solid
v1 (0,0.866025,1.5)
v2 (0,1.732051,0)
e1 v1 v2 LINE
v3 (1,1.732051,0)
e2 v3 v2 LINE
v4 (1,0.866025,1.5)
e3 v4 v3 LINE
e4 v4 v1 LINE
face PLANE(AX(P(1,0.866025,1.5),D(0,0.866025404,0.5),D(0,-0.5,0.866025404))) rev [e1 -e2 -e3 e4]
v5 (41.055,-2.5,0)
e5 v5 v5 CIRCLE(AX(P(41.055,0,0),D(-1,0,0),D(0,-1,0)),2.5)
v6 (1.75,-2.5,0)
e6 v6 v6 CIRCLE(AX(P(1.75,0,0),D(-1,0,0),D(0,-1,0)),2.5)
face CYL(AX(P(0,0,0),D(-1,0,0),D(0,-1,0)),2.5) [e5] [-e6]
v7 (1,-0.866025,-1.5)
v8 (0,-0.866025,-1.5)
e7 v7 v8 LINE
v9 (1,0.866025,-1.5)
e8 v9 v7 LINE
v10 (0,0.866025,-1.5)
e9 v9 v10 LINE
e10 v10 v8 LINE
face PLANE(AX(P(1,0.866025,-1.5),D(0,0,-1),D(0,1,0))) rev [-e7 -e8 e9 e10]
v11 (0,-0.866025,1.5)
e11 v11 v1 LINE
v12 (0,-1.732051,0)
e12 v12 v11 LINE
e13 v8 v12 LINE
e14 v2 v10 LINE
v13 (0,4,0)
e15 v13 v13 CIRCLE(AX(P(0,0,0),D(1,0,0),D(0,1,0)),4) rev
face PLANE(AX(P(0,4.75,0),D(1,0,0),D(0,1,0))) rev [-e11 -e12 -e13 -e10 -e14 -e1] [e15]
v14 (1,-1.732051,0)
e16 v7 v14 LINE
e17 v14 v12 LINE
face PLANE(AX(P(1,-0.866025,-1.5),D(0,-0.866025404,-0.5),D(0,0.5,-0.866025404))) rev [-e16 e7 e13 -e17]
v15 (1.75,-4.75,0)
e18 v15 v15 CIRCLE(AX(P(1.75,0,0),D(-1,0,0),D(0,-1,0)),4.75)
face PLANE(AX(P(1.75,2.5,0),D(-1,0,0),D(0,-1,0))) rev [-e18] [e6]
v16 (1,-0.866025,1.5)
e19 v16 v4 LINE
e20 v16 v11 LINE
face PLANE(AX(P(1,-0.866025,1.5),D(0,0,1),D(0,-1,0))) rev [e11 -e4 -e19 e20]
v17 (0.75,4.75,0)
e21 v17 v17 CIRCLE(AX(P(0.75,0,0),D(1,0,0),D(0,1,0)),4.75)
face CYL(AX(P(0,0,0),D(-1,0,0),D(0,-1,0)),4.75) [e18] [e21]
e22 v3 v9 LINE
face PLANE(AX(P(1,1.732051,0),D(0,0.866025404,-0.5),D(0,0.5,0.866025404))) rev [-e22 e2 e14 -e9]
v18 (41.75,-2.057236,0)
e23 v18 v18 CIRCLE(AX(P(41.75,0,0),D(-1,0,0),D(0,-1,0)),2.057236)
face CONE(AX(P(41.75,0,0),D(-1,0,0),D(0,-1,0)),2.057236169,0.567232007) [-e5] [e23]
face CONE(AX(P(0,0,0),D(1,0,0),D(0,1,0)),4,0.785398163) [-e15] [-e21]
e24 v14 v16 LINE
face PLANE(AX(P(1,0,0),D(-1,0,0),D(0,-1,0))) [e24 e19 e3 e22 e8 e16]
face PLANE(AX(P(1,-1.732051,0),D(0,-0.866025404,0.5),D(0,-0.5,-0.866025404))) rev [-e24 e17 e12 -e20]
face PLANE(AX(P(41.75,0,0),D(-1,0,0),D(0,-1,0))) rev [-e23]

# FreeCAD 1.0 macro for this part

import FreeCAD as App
import Part
import Sketcher
from FreeCAD import Vector
Q = App.Units.Quantity


def edges_at(feature, points):
    """Names of the edges that pass closest to the given points."""
    edges = feature.Shape.Edges
    near = lambda p: min(range(len(edges)), key=lambda i: edges[i].distToShape(Part.Vertex(*p))[0])
    return sorted({f"Edge{near(p) + 1}" for p in points})


def add_polygon(sketch, points):
    """Adds a closed chain of lines whose ends are joined by coincident constraints."""
    first, n = sketch.GeometryCount, len(points)
    for a, b in zip(points, points[1:] + points[:1]):
        sketch.addGeometry(Part.LineSegment(App.Vector(*a, 0), App.Vector(*b, 0)), False)
    for i in range(n):
        sketch.addConstraint(Sketcher.Constraint("Coincident", first + i, 2, first + (i + 1) % n, 1))

doc = App.newDocument("Part")
params = doc.addObject("Spreadsheet::Sheet", "Params")
for row, (alias, value) in enumerate([
    ("sketch1_width", "1.75 mm"),
    ("sketch1_height", "2.25 mm"),
    ("sketch1_height2", "4.75 mm"),
    ("revolution_angle", "360 deg"),
    ("pocket1_length", "1 mm"),
    ("chamfer_size", "0.75 mm"),
], start=1):
    params.set(f"A{row}", alias)
    params.set(f"B{row}", "=" + value)
    params.setAlias(f"B{row}", alias)

body = doc.addObject("PartDesign::Body", "Body")

sketch1 = doc.addObject("Sketcher::SketchObject", "Sketch")
body.addObject(sketch1)
sketch1.AttachmentSupport = (doc.XY_Plane, [""])
sketch1.MapMode = "FlatFace"
add_polygon(sketch1, [(41.8, 0), (41.8, 2.1), (41.1, 2.5), (1.8, 2.5), (1.8, 4.8), (0, 4.8), (0, 0)])
sketch1.addConstraint(Sketcher.Constraint("Vertical", 0))
sketch1.addConstraint(Sketcher.Constraint("Horizontal", 2))
sketch1.addConstraint(Sketcher.Constraint("Vertical", 3))
sketch1.addConstraint(Sketcher.Constraint("Horizontal", 4))
sketch1.addConstraint(Sketcher.Constraint("Vertical", 5))
sketch1.addConstraint(Sketcher.Constraint("Horizontal", 6))
sketch1.addConstraint(Sketcher.Constraint("Coincident", 5, 2, -1, 1))
sketch1.addConstraint(Sketcher.Constraint("Angle", 1, Q("147.5 deg")))
sketch1.addConstraint(Sketcher.Constraint("DistanceX", 2, 2, 0, 2, Q("40 mm")))
sketch1.addConstraint(Sketcher.Constraint("DistanceX", 4, 2, 4, 1, Q("1.75 mm")))
sketch1.addConstraint(Sketcher.Constraint("DistanceY", 3, 1, 3, 2, Q("2.25 mm")))
sketch1.addConstraint(Sketcher.Constraint("DistanceY", 5, 2, 5, 1, Q("4.75 mm")))
sketch1.addConstraint(Sketcher.Constraint("DistanceX", 2, 2, 2, 1, Q("39.305 mm")))
sketch1.setExpression("Constraints[16]", "Params.sketch1_width")
sketch1.setExpression("Constraints[17]", "Params.sketch1_height")
sketch1.setExpression("Constraints[18]", "Params.sketch1_height2")
revolution = doc.addObject("PartDesign::Revolution", "Revolution")
body.addObject(revolution)
revolution.Profile = sketch1
revolution.ReferenceAxis = (sketch1, ["H_Axis"])
revolution.setExpression("Angle", "Params.revolution_angle")

sketch2 = doc.addObject("Sketcher::SketchObject", "Sketch001")
body.addObject(sketch2)
sketch2.AttachmentSupport = (doc.YZ_Plane, [""])
sketch2.MapMode = "FlatFace"
add_polygon(sketch2, [(-0.9, 1.5), (0.9, 1.5), (1.7, 0), (0.9, -1.5), (-0.9, -1.5), (-1.7, 0)])
sketch2.addConstraint(Sketcher.Constraint("Horizontal", 0))
sketch2.addConstraint(Sketcher.Constraint("Horizontal", 3))
sketch2.addConstraint(Sketcher.Constraint("Symmetric", 0, 2, 3, 2, -1, 1))
sketch2.addConstraint(Sketcher.Constraint("Symmetric", 1, 2, 4, 2, -1, 1))
sketch2.addConstraint(Sketcher.Constraint("PointOnObject", 1, 2, -1))
sketch2.addConstraint(Sketcher.Constraint("Parallel", 2, 5))
sketch2.addConstraint(Sketcher.Constraint("Vertical", 0, 2, 2, 2))
sketch2.addConstraint(Sketcher.Constraint("Angle", 1, Q("-60 deg")))
sketch2.addConstraint(Sketcher.Constraint("DistanceY", 2, 2, 0, 2, Q("3 mm")))
sketch2.addConstraint(Sketcher.Constraint("DistanceX", 0, 1, 0, 2, Q("1.732051 mm")))
pocket1 = doc.addObject("PartDesign::Pocket", "Pocket")
body.addObject(pocket1)
pocket1.Profile = sketch2
pocket1.setExpression("Length", "Params.pocket1_length")
pocket1.Reversed = True
doc.recompute()

chamfer = doc.addObject("PartDesign::Chamfer", "Chamfer")
body.addObject(chamfer)
chamfer.Base = (pocket1, edges_at(pocket1, [(0, -4.75, 0)]))
chamfer.setExpression("Size", "Params.chamfer_size")

doc.recompute()
